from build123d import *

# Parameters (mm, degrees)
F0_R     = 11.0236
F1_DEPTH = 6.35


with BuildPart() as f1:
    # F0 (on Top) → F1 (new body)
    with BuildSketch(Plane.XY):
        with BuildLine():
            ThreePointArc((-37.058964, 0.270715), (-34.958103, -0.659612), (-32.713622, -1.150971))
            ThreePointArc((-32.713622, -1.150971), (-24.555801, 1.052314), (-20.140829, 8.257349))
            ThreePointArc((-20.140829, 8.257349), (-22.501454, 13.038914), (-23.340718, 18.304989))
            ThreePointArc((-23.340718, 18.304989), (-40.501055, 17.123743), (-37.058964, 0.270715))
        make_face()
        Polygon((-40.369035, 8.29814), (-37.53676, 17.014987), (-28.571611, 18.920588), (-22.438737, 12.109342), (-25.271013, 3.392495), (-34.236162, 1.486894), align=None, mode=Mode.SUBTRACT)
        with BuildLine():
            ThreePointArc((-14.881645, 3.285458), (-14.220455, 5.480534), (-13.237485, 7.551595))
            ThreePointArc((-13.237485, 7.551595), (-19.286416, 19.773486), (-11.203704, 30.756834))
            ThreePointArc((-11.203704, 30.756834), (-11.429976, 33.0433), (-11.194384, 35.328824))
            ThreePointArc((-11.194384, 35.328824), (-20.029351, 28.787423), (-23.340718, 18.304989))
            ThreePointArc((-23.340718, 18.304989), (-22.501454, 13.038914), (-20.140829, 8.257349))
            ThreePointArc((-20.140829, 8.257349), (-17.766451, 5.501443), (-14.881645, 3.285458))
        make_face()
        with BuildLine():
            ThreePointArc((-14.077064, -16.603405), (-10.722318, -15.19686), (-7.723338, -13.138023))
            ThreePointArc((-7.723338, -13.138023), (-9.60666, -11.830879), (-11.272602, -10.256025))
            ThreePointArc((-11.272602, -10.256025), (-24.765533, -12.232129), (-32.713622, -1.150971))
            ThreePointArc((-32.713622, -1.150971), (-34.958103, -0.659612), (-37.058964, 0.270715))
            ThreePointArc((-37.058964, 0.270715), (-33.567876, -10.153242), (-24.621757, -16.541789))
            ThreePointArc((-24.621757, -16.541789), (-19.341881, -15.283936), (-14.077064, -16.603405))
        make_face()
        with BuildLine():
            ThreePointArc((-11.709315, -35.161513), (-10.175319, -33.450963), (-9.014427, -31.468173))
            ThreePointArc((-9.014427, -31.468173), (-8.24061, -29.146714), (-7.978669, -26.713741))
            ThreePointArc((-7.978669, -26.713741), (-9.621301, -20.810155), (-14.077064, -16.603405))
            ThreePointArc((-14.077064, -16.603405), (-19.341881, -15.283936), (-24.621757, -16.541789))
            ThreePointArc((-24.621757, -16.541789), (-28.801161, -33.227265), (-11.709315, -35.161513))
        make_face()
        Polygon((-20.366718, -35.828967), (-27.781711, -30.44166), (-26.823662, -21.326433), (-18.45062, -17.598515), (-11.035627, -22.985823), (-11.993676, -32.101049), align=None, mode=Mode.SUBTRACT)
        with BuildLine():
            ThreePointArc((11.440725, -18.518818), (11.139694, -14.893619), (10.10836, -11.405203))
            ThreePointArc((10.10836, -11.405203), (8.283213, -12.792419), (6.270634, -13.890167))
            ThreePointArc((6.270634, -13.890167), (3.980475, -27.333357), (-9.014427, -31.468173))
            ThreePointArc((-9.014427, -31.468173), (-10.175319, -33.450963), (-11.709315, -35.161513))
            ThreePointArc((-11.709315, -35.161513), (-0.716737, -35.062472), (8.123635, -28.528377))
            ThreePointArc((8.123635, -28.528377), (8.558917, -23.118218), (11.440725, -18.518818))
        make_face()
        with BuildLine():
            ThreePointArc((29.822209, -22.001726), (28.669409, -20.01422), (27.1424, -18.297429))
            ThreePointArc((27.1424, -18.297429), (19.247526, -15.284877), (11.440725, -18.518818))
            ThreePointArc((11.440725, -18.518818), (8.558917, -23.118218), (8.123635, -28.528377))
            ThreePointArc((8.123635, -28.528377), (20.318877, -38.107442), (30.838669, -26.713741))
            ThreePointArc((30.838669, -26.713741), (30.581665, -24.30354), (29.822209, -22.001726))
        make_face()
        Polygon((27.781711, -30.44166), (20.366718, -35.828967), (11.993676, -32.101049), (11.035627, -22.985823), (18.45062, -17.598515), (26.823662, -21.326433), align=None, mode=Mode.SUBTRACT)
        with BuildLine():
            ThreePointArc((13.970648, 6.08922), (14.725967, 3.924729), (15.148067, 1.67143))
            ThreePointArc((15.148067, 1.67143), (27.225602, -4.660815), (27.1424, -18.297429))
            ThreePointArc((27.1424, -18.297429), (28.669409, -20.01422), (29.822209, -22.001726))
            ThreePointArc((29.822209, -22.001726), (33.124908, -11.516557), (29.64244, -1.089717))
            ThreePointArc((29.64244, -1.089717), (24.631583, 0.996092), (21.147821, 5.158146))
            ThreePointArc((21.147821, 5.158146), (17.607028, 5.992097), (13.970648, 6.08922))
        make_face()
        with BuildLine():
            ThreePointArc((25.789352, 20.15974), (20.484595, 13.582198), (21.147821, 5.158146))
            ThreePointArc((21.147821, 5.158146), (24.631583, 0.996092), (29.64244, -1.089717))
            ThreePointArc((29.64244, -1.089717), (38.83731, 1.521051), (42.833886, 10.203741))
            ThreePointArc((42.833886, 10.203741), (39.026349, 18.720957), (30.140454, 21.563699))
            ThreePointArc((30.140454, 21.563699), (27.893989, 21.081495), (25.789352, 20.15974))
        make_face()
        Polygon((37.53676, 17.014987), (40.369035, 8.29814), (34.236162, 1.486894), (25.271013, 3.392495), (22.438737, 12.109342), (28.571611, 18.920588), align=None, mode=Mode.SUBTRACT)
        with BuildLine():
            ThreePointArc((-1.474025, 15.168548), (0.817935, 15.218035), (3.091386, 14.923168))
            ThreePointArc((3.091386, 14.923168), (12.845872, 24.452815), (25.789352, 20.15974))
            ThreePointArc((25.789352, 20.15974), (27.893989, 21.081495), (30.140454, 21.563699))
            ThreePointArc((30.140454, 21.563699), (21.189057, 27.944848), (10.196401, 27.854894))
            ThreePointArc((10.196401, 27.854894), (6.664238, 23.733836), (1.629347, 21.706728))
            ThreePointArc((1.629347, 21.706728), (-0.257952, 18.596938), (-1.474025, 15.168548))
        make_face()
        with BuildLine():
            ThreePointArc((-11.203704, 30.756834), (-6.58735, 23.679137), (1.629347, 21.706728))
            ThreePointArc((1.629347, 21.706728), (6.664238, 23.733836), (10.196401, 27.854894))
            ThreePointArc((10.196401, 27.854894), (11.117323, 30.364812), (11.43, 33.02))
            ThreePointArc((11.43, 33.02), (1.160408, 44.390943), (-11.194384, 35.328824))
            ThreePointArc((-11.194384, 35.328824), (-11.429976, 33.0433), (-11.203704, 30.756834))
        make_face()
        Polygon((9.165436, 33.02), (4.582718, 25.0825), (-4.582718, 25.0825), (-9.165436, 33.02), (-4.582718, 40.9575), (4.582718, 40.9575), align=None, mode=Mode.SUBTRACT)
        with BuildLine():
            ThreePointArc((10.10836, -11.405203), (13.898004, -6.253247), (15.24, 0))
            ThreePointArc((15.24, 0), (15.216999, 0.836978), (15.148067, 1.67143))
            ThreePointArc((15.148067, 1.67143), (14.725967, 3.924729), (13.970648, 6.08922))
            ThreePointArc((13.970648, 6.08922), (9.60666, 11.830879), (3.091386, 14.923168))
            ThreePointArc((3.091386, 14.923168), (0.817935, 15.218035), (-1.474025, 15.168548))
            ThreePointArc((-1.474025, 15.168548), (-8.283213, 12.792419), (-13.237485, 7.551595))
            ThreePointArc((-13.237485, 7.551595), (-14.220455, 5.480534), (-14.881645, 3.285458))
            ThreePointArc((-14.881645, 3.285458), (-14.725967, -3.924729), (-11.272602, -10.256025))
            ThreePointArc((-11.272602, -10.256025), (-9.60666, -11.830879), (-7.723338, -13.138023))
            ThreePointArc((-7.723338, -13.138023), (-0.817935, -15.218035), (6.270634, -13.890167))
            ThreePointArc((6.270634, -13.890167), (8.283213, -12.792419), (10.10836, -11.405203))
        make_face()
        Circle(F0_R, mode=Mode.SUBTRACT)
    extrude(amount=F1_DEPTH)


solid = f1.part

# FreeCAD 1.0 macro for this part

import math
import FreeCAD as App
import Part
import Sketcher
Q = App.Units.Quantity

doc = App.newDocument("Part")
body = doc.addObject("PartDesign::Body", "Body")

# Sketch on XY plane
sketch1 = body.newObject("Sketcher::SketchObject", "Sketch")
sketch1.AttachmentSupport = (doc.getObject("XY_Plane"), [""])
sketch1.MapMode = "FlatFace"
sketch1.addGeometry([
    Part.ArcOfCircle(Part.Circle(App.Vector(-5.5, 18.4, 0), App.Vector(0, 0, 1), 17.8), math.radians(109), math.radians(180)),  # 0
    Part.ArcOfCircle(Part.Circle(App.Vector(-31.4, 10.2, 0), App.Vector(0, 0, 1), 11.4), math.radians(45), math.radians(240)),  # 1
    Part.ArcOfCircle(Part.Circle(App.Vector(-19.3, 0.4, 0), App.Vector(0, 0, 1), 17.8), math.radians(-179), math.radians(-108)),  # 2
    Part.ArcOfCircle(Part.Circle(App.Vector(-19.4, -26.7, 0), App.Vector(0, 0, 1), 11.4), math.radians(117), math.radians(312)),  # 3
    Part.ArcOfCircle(Part.Circle(App.Vector(-6.4, -18.2, 0), App.Vector(0, 0, 1), 17.8), math.radians(-107), math.radians(-36)),  # 4
    Part.ArcOfCircle(Part.Circle(App.Vector(19.4, -26.7, 0), App.Vector(0, 0, 1), 11.4), math.radians(-171), math.radians(0)),  # 5
    Part.ArcOfCircle(Part.Circle(App.Vector(19.4, -26.7, 0), App.Vector(0, 0, 1), 11.4), math.radians(0), math.radians(24)),  # 6
    Part.ArcOfCircle(Part.Circle(App.Vector(15.3, -11.7, 0), App.Vector(0, 0, 1), 17.8), math.radians(-35), math.radians(36)),  # 7
    Part.ArcOfCircle(Part.Circle(App.Vector(31.4, 10.2, 0), App.Vector(0, 0, 1), 11.4), math.radians(-99), math.radians(0)),  # 8
    Part.ArcOfCircle(Part.Circle(App.Vector(31.4, 10.2, 0), App.Vector(0, 0, 1), 11.4), math.radians(0), math.radians(96)),  # 9
    Part.ArcOfCircle(Part.Circle(App.Vector(15.8, 11, 0), App.Vector(0, 0, 1), 17.8), math.radians(37), math.radians(108)),  # 10
    Part.ArcOfCircle(Part.Circle(App.Vector(0, 33, 0), App.Vector(0, 0, 1), 11.4), math.radians(-27), math.radians(0)),  # 11
    Part.ArcOfCircle(Part.Circle(App.Vector(0, 33, 0), App.Vector(0, 0, 1), 11.4), math.radians(0), math.radians(168)),  # 12
    Part.LineSegment(App.Vector(-12, -32.1, 0), App.Vector(-20.4, -35.8, 0)),  # 13
    Part.LineSegment(App.Vector(-20.4, -35.8, 0), App.Vector(-27.8, -30.4, 0)),  # 14
    Part.LineSegment(App.Vector(-27.8, -30.4, 0), App.Vector(-26.8, -21.3, 0)),  # 15
    Part.LineSegment(App.Vector(-26.8, -21.3, 0), App.Vector(-18.5, -17.6, 0)),  # 16
    Part.LineSegment(App.Vector(-18.5, -17.6, 0), App.Vector(-11, -23, 0)),  # 17
    Part.LineSegment(App.Vector(-11, -23, 0), App.Vector(-12, -32.1, 0)),  # 18
    Part.ArcOfCircle(Part.Circle(App.Vector(-19.2, 0.4, 0), App.Vector(0, 0, 1), 17.8), math.radians(-73), math.radians(-50)),  # 19
    Part.ArcOfCircle(Part.Circle(App.Vector(0, 0, 0), App.Vector(0, 0, 1), 15.2), math.radians(-120), math.radians(-66)),  # 20
    Part.ArcOfCircle(Part.Circle(App.Vector(-5.9, -18.7, 0), App.Vector(0, 0, 1), 13.1), math.radians(-104), math.radians(22)),  # 21
    Part.ArcOfCircle(Part.Circle(App.Vector(-19.4, -26.7, 0), App.Vector(0, 0, 1), 11.4), math.radians(-25), math.radians(0)),  # 22
    Part.ArcOfCircle(Part.Circle(App.Vector(-19.4, -26.7, 0), App.Vector(0, 0, 1), 11.4), math.radians(0), math.radians(62)),  # 23
    Part.ArcOfCircle(Part.Circle(App.Vector(-31.4, 10.2, 0), App.Vector(0, 0, 1), 11.4), math.radians(-97), math.radians(-10)),  # 24
    Part.ArcOfCircle(Part.Circle(App.Vector(-5.5, 18.4, 0), App.Vector(0, 0, 1), 17.8), math.radians(-145), math.radians(-122)),  # 25
    Part.ArcOfCircle(Part.Circle(App.Vector(0, 0, 0), App.Vector(0, 0, 1), 15.2), math.radians(168), math.radians(222)),  # 26
    Part.ArcOfCircle(Part.Circle(App.Vector(-19.6, -0.2, 0), App.Vector(0, 0, 1), 13.1), math.radians(-176), math.radians(-50)),  # 27
    Part.LineSegment(App.Vector(26.8, -21.3, 0), App.Vector(27.8, -30.4, 0)),  # 28
    Part.LineSegment(App.Vector(27.8, -30.4, 0), App.Vector(20.4, -35.8, 0)),  # 29
    Part.LineSegment(App.Vector(20.4, -35.8, 0), App.Vector(12, -32.1, 0)),  # 30
    Part.LineSegment(App.Vector(12, -32.1, 0), App.Vector(11, -23, 0)),  # 31
    Part.LineSegment(App.Vector(11, -23, 0), App.Vector(18.5, -17.6, 0)),  # 32
    Part.LineSegment(App.Vector(18.5, -17.6, 0), App.Vector(26.8, -21.3, 0)),  # 33
    Part.ArcOfCircle(Part.Circle(App.Vector(-6.4, -18.2, 0), App.Vector(0, 0, 1), 17.8), math.radians(-1), math.radians(22)),  # 34
    Part.ArcOfCircle(Part.Circle(App.Vector(0, 0, 0), App.Vector(0, 0, 1), 15.2), math.radians(-48), math.radians(0)),  # 35
    Part.ArcOfCircle(Part.Circle(App.Vector(0, 0, 0), App.Vector(0, 0, 1), 15.2), math.radians(0), math.radians(6.3)),  # 36
    Part.ArcOfCircle(Part.Circle(App.Vector(16, -11.4, 0), App.Vector(0, 0, 1), 13.1), math.radians(-32), math.radians(94)),  # 37
    Part.ArcOfCircle(Part.Circle(App.Vector(19.4, -26.7, 0), App.Vector(0, 0, 1), 11.4), math.radians(47), math.radians(134)),  # 38
    Part.Circle(App.Vector(0, 0, 0), App.Vector(0, 0, 1), 11),  # 39
    Part.LineSegment(App.Vector(-34.2, 1.5, 0), App.Vector(-40.4, 8.3, 0)),  # 40
    Part.LineSegment(App.Vector(-40.4, 8.3, 0), App.Vector(-37.5, 17, 0)),  # 41
    Part.LineSegment(App.Vector(-37.5, 17, 0), App.Vector(-28.6, 18.9, 0)),  # 42
    Part.LineSegment(App.Vector(-28.6, 18.9, 0), App.Vector(-22.4, 12.1, 0)),  # 43
    Part.LineSegment(App.Vector(-22.4, 12.1, 0), App.Vector(-25.3, 3.4, 0)),  # 44
    Part.LineSegment(App.Vector(-25.3, 3.4, 0), App.Vector(-34.2, 1.5, 0)),  # 45
    Part.ArcOfCircle(Part.Circle(App.Vector(-6.2, 18.6, 0), App.Vector(0, 0, 1), 13.1), math.radians(112), math.radians(238)),  # 46
    Part.ArcOfCircle(Part.Circle(App.Vector(0, 33, 0), App.Vector(0, 0, 1), 11.4), math.radians(-169), math.radians(-82)),  # 47
    Part.ArcOfCircle(Part.Circle(App.Vector(15.8, 11, 0), App.Vector(0, 0, 1), 17.8), math.radians(143), math.radians(166)),  # 48
    Part.ArcOfCircle(Part.Circle(App.Vector(0, 0, 0), App.Vector(0, 0, 1), 15.2), math.radians(96), math.radians(150)),  # 49
    Part.ArcOfCircle(Part.Circle(App.Vector(15.8, 11.7, 0), App.Vector(0, 0, 1), 13.1), math.radians(40), math.radians(166)),  # 50
    Part.ArcOfCircle(Part.Circle(App.Vector(31.4, 10.2, 0), App.Vector(0, 0, 1), 11.4), math.radians(119), math.radians(206)),  # 51
    Part.ArcOfCircle(Part.Circle(App.Vector(15.3, -11.7, 0), App.Vector(0, 0, 1), 17.8), math.radians(71), math.radians(94)),  # 52
    Part.ArcOfCircle(Part.Circle(App.Vector(0, 0, 0), App.Vector(0, 0, 1), 15.2), math.radians(24), math.radians(78)),  # 53
    Part.LineSegment(App.Vector(28.6, 18.9, 0), App.Vector(37.5, 17, 0)),  # 54
    Part.LineSegment(App.Vector(37.5, 17, 0), App.Vector(40.4, 8.3, 0)),  # 55
    Part.LineSegment(App.Vector(40.4, 8.3, 0), App.Vector(34.2, 1.5, 0)),  # 56
    Part.LineSegment(App.Vector(34.2, 1.5, 0), App.Vector(25.3, 3.4, 0)),  # 57
    Part.LineSegment(App.Vector(25.3, 3.4, 0), App.Vector(22.4, 12.1, 0)),  # 58
    Part.LineSegment(App.Vector(22.4, 12.1, 0), App.Vector(28.6, 18.9, 0)),  # 59
    Part.LineSegment(App.Vector(4.6, 41, 0), App.Vector(9.2, 33, 0)),  # 60
    Part.LineSegment(App.Vector(9.2, 33, 0), App.Vector(4.6, 25.1, 0)),  # 61
    Part.LineSegment(App.Vector(4.6, 25.1, 0), App.Vector(-4.6, 25.1, 0)),  # 62
    Part.LineSegment(App.Vector(-4.6, 25.1, 0), App.Vector(-9.2, 33, 0)),  # 63
    Part.LineSegment(App.Vector(-9.2, 33, 0), App.Vector(-4.6, 41, 0)),  # 64
    Part.LineSegment(App.Vector(-4.6, 41, 0), App.Vector(4.6, 41, 0)),  # 65
], False)
sketch1.addConstraint([
    Sketcher.Constraint("Coincident", 0, 2, 1, 1),
    Sketcher.Constraint("Coincident", 1, 2, 2, 1),
    Sketcher.Constraint("Coincident", 2, 2, 3, 1),
    Sketcher.Constraint("Coincident", 3, 2, 4, 1),
    Sketcher.Constraint("Coincident", 4, 2, 5, 1),
    Sketcher.Constraint("Tangent", 5, 2, 6, 1),
    Sketcher.Constraint("Coincident", 6, 2, 7, 1),
    Sketcher.Constraint("Coincident", 7, 2, 8, 1),
    Sketcher.Constraint("Tangent", 8, 2, 9, 1),
    Sketcher.Constraint("Coincident", 9, 2, 10, 1),
    Sketcher.Constraint("Coincident", 10, 2, 11, 1),
    Sketcher.Constraint("Tangent", 11, 2, 12, 1),
    Sketcher.Constraint("Coincident", 12, 2, 0, 1),
    Sketcher.Constraint("Coincident", 13, 2, 14, 1),
    Sketcher.Constraint("Coincident", 14, 2, 15, 1),
    Sketcher.Constraint("Coincident", 15, 2, 16, 1),
    Sketcher.Constraint("Coincident", 16, 2, 17, 1),
    Sketcher.Constraint("Coincident", 17, 2, 18, 1),
    Sketcher.Constraint("Coincident", 18, 2, 13, 1),
    Sketcher.Constraint("Coincident", 19, 2, 20, 1),
    Sketcher.Constraint("Coincident", 20, 2, 21, 2),
    Sketcher.Constraint("Coincident", 21, 1, 22, 1),
    Sketcher.Constraint("Tangent", 22, 2, 23, 1),
    Sketcher.Constraint("Coincident", 23, 2, 19, 1),
    Sketcher.Constraint("Coincident", 24, 2, 25, 1),
    Sketcher.Constraint("Coincident", 25, 2, 26, 1),
    Sketcher.Constraint("Coincident", 26, 2, 27, 2),
    Sketcher.Constraint("Coincident", 27, 1, 24, 1),
    Sketcher.Constraint("Coincident", 28, 2, 29, 1),
    Sketcher.Constraint("Coincident", 29, 2, 30, 1),
    Sketcher.Constraint("Coincident", 30, 2, 31, 1),
    Sketcher.Constraint("Coincident", 31, 2, 32, 1),
    Sketcher.Constraint("Coincident", 32, 2, 33, 1),
    Sketcher.Constraint("Coincident", 33, 2, 28, 1),
    Sketcher.Constraint("Coincident", 34, 2, 35, 1),
    Sketcher.Constraint("Tangent", 35, 2, 36, 1),
    Sketcher.Constraint("Coincident", 36, 2, 37, 2),
    Sketcher.Constraint("Coincident", 37, 1, 38, 1),
    Sketcher.Constraint("Coincident", 38, 2, 34, 1),
    Sketcher.Constraint("Coincident", 40, 2, 41, 1),
    Sketcher.Constraint("Coincident", 41, 2, 42, 1),
    Sketcher.Constraint("Coincident", 42, 2, 43, 1),
    Sketcher.Constraint("Coincident", 43, 2, 44, 1),
    Sketcher.Constraint("Coincident", 44, 2, 45, 1),
    Sketcher.Constraint("Coincident", 45, 2, 40, 1),
    Sketcher.Constraint("Coincident", 46, 1, 47, 1),
    Sketcher.Constraint("Coincident", 47, 2, 48, 1),
    Sketcher.Constraint("Coincident", 48, 2, 49, 1),
    Sketcher.Constraint("Coincident", 49, 2, 46, 2),
    Sketcher.Constraint("Coincident", 50, 1, 51, 1),
    Sketcher.Constraint("Coincident", 51, 2, 52, 1),
    Sketcher.Constraint("Coincident", 52, 2, 53, 1),
    Sketcher.Constraint("Coincident", 53, 2, 50, 2),
    Sketcher.Constraint("Coincident", 54, 2, 55, 1),
    Sketcher.Constraint("Coincident", 55, 2, 56, 1),
    Sketcher.Constraint("Coincident", 56, 2, 57, 1),
    Sketcher.Constraint("Coincident", 57, 2, 58, 1),
    Sketcher.Constraint("Coincident", 58, 2, 59, 1),
    Sketcher.Constraint("Coincident", 59, 2, 54, 1),
    Sketcher.Constraint("Coincident", 60, 2, 61, 1),
    Sketcher.Constraint("Coincident", 61, 2, 62, 1),
    Sketcher.Constraint("Coincident", 62, 2, 63, 1),
    Sketcher.Constraint("Coincident", 63, 2, 64, 1),
    Sketcher.Constraint("Coincident", 64, 2, 65, 1),
    Sketcher.Constraint("Coincident", 65, 2, 60, 1),
    Sketcher.Constraint("Horizontal", 62),
    Sketcher.Constraint("Horizontal", 65),
    Sketcher.Constraint("Coincident", 20, 3, -1, 1),
    Sketcher.Constraint("Coincident", 26, 3, -1, 1),
    Sketcher.Constraint("Coincident", 35, 3, -1, 1),
    Sketcher.Constraint("Coincident", 39, 3, -1, 1),
    Sketcher.Constraint("Coincident", 49, 3, -1, 1),
    Sketcher.Constraint("Coincident", 53, 3, -1, 1),
    Sketcher.Constraint("Coincident", 22, 3, 3, 3),
    Sketcher.Constraint("Coincident", 24, 3, 1, 3),
    Sketcher.Constraint("Coincident", 38, 3, 5, 3),
    Sketcher.Constraint("Coincident", 47, 3, 12, 3),
    Sketcher.Constraint("Coincident", 51, 3, 8, 3),
    Sketcher.Constraint("Equal", 0, 2),
    Sketcher.Constraint("Equal", 1, 3),
    Sketcher.Constraint("Equal", 0, 4),
    Sketcher.Constraint("Equal", 3, 5),
    Sketcher.Constraint("Equal", 2, 7),
    Sketcher.Constraint("Equal", 5, 8),
    Sketcher.Constraint("Equal", 8, 9),
    Sketcher.Constraint("Equal", 4, 10),
    Sketcher.Constraint("Equal", 9, 12),
    Sketcher.Constraint("Equal", 12, 23),
    Sketcher.Constraint("Equal", 23, 24),
    Sketcher.Constraint("Equal", 21, 27),
    Sketcher.Constraint("Equal", 20, 35),
    Sketcher.Constraint("Equal", 27, 37),
    Sketcher.Constraint("Equal", 24, 38),
    Sketcher.Constraint("Equal", 37, 46),
    Sketcher.Constraint("Equal", 38, 47),
    Sketcher.Constraint("Equal", 26, 49),
    Sketcher.Constraint("Equal", 46, 50),
    Sketcher.Constraint("Equal", 24, 51),
    Sketcher.Constraint("Equal", 49, 53),
    Sketcher.Constraint("Symmetric", 3, 3, 5, 3, -2),
    Sketcher.Constraint("Symmetric", 1, 3, 8, 3, -2),
    Sketcher.Constraint("Symmetric", 14, 2, 28, 2, -2),
    Sketcher.Constraint("Symmetric", 13, 2, 29, 2, -2),
    Sketcher.Constraint("Symmetric", 18, 2, 30, 2, -2),
    Sketcher.Constraint("Symmetric", 17, 2, 31, 2, -2),
    Sketcher.Constraint("Symmetric", 16, 2, 32, 2, -2),
    Sketcher.Constraint("Symmetric", 15, 2, 33, 2, -2),
    Sketcher.Constraint("Symmetric", 41, 2, 54, 2, -2),
    Sketcher.Constraint("Symmetric", 40, 2, 55, 2, -2),
    Sketcher.Constraint("Symmetric", 45, 2, 56, 2, -2),
    Sketcher.Constraint("Symmetric", 44, 2, 57, 2, -2),
    Sketcher.Constraint("Symmetric", 43, 2, 58, 2, -2),
    Sketcher.Constraint("Symmetric", 42, 2, 59, 2, -2),
    Sketcher.Constraint("Symmetric", 60, 2, 63, 2, -2),
    Sketcher.Constraint("PointOnObject", 12, 3, -2),
    Sketcher.Constraint("PointOnObject", 35, 2, -1),
    Sketcher.Constraint("Parallel", 13, 16),
    Sketcher.Constraint("Parallel", 14, 17),
    Sketcher.Constraint("Parallel", 15, 18),
    Sketcher.Constraint("Parallel", 40, 43),
    Sketcher.Constraint("Parallel", 41, 44),
    Sketcher.Constraint("Parallel", 42, 45),
    Sketcher.Constraint("Parallel", 60, 63),
    Sketcher.Constraint("Parallel", 61, 64),
    Sketcher.Constraint("Horizontal", 38, 3, 5, 2),
    Sketcher.Constraint("Horizontal", 51, 3, 8, 2),
    Sketcher.Constraint("Horizontal", 47, 3, 11, 2),
    Sketcher.Constraint("Horizontal", 5, 2, 22, 2),
    Sketcher.Constraint("Horizontal", 11, 2, 60, 2),
    Sketcher.Constraint("Vertical", 7, 3, 52, 3),
    Sketcher.Constraint("Vertical", 62, 2, 64, 2),
    Sketcher.Constraint("Vertical", 61, 2, 65, 2),
    Sketcher.Constraint("Equal", 13, 14),
    Sketcher.Constraint("Equal", 14, 15),
    Sketcher.Constraint("Equal", 15, 16),
    Sketcher.Constraint("Equal", 33, 40),
    Sketcher.Constraint("Equal", 40, 41),
    Sketcher.Constraint("Equal", 41, 42),
    Sketcher.Constraint("Equal", 42, 43),
    Sketcher.Constraint("Equal", 59, 60),
    Sketcher.Constraint("Radius", 20, Q("0.5999999 in")),
    Sketcher.Constraint("Radius", 26, Q("0.6 in")),
    Sketcher.Constraint("Radius", 1, Q("0.45 in")),
    Sketcher.Constraint("Diameter", 39, Q("0.868 in")),
    Sketcher.Constraint("Angle", 13, Q("-156.000003 deg")),
    Sketcher.Constraint("Angle", 14, Q("144.000004 deg")),
    Sketcher.Constraint("Angle", 15, Q("84 deg")),
    Sketcher.Constraint("Angle", 40, Q("131.999998 deg")),
    Sketcher.Constraint("Angle", 41, Q("72.000002 deg")),
    Sketcher.Constraint("Angle", 42, Q("11.999998 deg")),
    Sketcher.Constraint("Angle", 60, Q("-59.999999 deg")),
    Sketcher.Constraint("DistanceY", -1, 1, 11, 3, Q("1.3000001 in")),
    Sketcher.Constraint("Radius", 7, 17.809748),
    Sketcher.Constraint("Radius", 11, 11.43002),
    Sketcher.Constraint("Radius", 22, 11.429992),
    Sketcher.Constraint("Radius", 52, 17.809758),
    Sketcher.Constraint("DistanceY", -1, 1, 61, 2, Q("0.9875 in")),
    Sketcher.Constraint("Radius", 6, 11.429985),
    Sketcher.Constraint("Radius", 19, 17.809726),
    Sketcher.Constraint("Radius", 21, 13.109165),
    Sketcher.Constraint("Radius", 25, 17.809775),
    Sketcher.Constraint("Radius", 34, 17.809765),
    Sketcher.Constraint("Radius", 36, 15.240332),
    Sketcher.Constraint("Radius", 48, 17.809793),
    Sketcher.Constraint("DistanceX", 19, 3, -1, 1, 19.25),
    Sketcher.Constraint("DistanceY", -1, 1, 9, 2, 21.563699),
    Sketcher.Constraint("DistanceX", -1, 1, 10, 2, 10.196401),
    Sketcher.Constraint("DistanceX", -1, 1, 37, 1, 27.1424),
    Sketcher.Constraint("DistanceX", 62, 2, 62, 1, 9.165436),
    Sketcher.Constraint("DistanceX", 0, 3, -1, 1, 5.53151),
    Sketcher.Constraint("DistanceY", -1, 1, 0, 3, 18.44336),
    Sketcher.Constraint("DistanceY", -1, 1, 1, 3, 10.203741),
    Sketcher.Constraint("DistanceX", 3, 3, -1, 1, 19.408669),
    Sketcher.Constraint("DistanceY", 3, 3, -1, 1, 26.713741),
    Sketcher.Constraint("DistanceX", 4, 3, -1, 1, 6.365649),
    Sketcher.Constraint("DistanceX", -1, 1, 10, 3, 15.831349),
    Sketcher.Constraint("DistanceX", 25, 3, -1, 1, 5.531489),
    Sketcher.Constraint("DistanceX", 34, 3, -1, 1, 6.365669),
    Sketcher.Constraint("DistanceX", -1, 1, 37, 3, 15.98782),
    Sketcher.Constraint("DistanceX", 46, 3, -1, 1, 6.227311),
    Sketcher.Constraint("DistanceX", -1, 1, 48, 3, 15.831391),
    Sketcher.Constraint("DistanceY", -1, 1, 48, 3, 10.96007),
    Sketcher.Constraint("DistanceX", -1, 1, 52, 3, 15.315818),
    Sketcher.Constraint("DistanceY", 2, 2, -1, 1, 16.541789),
    Sketcher.Constraint("DistanceX", -1, 1, 6, 2, 29.822209),
    Sketcher.Constraint("DistanceX", 14, 2, -1, 1, 27.781711),
    Sketcher.Constraint("DistanceY", 14, 2, -1, 1, 30.44166),
    Sketcher.Constraint("DistanceX", 24, 2, -1, 1, 20.140829),
    Sketcher.Constraint("DistanceY", 27, 1, -1, 1, 1.150971),
    Sketcher.Constraint("DistanceX", -1, 1, 34, 2, 10.10836),
    Sketcher.Constraint("DistanceY", -1, 1, 40, 2, 8.29814),
    Sketcher.Constraint("DistanceX", 41, 2, -1, 1, 37.53676),
    Sketcher.Constraint("DistanceX", -1, 1, 50, 1, 25.789352),
    Sketcher.Constraint("DistanceX", -1, 1, 51, 2, 21.147821),
    Sketcher.Constraint("DistanceX", 2, 3, -1, 1, 19.250008),
    Sketcher.Constraint("DistanceY", 4, 3, -1, 1, 18.172333),
    Sketcher.Constraint("DistanceY", -1, 1, 19, 3, 0.438517),
    Sketcher.Constraint("DistanceX", 21, 3, -1, 1, 5.911818),
    Sketcher.Constraint("DistanceY", 21, 3, -1, 1, 18.731454),
    Sketcher.Constraint("DistanceX", 27, 3, -1, 1, 19.641524),
    Sketcher.Constraint("DistanceY", -1, 1, 46, 3, 18.628944),
    Sketcher.Constraint("DistanceX", -1, 1, 50, 3, 15.792833),
])
pad1 = body.newObject("PartDesign::Pad", "Pad")
pad1.Profile = sketch1
pad1.Length = Q("0.25 in")

doc.recompute()
